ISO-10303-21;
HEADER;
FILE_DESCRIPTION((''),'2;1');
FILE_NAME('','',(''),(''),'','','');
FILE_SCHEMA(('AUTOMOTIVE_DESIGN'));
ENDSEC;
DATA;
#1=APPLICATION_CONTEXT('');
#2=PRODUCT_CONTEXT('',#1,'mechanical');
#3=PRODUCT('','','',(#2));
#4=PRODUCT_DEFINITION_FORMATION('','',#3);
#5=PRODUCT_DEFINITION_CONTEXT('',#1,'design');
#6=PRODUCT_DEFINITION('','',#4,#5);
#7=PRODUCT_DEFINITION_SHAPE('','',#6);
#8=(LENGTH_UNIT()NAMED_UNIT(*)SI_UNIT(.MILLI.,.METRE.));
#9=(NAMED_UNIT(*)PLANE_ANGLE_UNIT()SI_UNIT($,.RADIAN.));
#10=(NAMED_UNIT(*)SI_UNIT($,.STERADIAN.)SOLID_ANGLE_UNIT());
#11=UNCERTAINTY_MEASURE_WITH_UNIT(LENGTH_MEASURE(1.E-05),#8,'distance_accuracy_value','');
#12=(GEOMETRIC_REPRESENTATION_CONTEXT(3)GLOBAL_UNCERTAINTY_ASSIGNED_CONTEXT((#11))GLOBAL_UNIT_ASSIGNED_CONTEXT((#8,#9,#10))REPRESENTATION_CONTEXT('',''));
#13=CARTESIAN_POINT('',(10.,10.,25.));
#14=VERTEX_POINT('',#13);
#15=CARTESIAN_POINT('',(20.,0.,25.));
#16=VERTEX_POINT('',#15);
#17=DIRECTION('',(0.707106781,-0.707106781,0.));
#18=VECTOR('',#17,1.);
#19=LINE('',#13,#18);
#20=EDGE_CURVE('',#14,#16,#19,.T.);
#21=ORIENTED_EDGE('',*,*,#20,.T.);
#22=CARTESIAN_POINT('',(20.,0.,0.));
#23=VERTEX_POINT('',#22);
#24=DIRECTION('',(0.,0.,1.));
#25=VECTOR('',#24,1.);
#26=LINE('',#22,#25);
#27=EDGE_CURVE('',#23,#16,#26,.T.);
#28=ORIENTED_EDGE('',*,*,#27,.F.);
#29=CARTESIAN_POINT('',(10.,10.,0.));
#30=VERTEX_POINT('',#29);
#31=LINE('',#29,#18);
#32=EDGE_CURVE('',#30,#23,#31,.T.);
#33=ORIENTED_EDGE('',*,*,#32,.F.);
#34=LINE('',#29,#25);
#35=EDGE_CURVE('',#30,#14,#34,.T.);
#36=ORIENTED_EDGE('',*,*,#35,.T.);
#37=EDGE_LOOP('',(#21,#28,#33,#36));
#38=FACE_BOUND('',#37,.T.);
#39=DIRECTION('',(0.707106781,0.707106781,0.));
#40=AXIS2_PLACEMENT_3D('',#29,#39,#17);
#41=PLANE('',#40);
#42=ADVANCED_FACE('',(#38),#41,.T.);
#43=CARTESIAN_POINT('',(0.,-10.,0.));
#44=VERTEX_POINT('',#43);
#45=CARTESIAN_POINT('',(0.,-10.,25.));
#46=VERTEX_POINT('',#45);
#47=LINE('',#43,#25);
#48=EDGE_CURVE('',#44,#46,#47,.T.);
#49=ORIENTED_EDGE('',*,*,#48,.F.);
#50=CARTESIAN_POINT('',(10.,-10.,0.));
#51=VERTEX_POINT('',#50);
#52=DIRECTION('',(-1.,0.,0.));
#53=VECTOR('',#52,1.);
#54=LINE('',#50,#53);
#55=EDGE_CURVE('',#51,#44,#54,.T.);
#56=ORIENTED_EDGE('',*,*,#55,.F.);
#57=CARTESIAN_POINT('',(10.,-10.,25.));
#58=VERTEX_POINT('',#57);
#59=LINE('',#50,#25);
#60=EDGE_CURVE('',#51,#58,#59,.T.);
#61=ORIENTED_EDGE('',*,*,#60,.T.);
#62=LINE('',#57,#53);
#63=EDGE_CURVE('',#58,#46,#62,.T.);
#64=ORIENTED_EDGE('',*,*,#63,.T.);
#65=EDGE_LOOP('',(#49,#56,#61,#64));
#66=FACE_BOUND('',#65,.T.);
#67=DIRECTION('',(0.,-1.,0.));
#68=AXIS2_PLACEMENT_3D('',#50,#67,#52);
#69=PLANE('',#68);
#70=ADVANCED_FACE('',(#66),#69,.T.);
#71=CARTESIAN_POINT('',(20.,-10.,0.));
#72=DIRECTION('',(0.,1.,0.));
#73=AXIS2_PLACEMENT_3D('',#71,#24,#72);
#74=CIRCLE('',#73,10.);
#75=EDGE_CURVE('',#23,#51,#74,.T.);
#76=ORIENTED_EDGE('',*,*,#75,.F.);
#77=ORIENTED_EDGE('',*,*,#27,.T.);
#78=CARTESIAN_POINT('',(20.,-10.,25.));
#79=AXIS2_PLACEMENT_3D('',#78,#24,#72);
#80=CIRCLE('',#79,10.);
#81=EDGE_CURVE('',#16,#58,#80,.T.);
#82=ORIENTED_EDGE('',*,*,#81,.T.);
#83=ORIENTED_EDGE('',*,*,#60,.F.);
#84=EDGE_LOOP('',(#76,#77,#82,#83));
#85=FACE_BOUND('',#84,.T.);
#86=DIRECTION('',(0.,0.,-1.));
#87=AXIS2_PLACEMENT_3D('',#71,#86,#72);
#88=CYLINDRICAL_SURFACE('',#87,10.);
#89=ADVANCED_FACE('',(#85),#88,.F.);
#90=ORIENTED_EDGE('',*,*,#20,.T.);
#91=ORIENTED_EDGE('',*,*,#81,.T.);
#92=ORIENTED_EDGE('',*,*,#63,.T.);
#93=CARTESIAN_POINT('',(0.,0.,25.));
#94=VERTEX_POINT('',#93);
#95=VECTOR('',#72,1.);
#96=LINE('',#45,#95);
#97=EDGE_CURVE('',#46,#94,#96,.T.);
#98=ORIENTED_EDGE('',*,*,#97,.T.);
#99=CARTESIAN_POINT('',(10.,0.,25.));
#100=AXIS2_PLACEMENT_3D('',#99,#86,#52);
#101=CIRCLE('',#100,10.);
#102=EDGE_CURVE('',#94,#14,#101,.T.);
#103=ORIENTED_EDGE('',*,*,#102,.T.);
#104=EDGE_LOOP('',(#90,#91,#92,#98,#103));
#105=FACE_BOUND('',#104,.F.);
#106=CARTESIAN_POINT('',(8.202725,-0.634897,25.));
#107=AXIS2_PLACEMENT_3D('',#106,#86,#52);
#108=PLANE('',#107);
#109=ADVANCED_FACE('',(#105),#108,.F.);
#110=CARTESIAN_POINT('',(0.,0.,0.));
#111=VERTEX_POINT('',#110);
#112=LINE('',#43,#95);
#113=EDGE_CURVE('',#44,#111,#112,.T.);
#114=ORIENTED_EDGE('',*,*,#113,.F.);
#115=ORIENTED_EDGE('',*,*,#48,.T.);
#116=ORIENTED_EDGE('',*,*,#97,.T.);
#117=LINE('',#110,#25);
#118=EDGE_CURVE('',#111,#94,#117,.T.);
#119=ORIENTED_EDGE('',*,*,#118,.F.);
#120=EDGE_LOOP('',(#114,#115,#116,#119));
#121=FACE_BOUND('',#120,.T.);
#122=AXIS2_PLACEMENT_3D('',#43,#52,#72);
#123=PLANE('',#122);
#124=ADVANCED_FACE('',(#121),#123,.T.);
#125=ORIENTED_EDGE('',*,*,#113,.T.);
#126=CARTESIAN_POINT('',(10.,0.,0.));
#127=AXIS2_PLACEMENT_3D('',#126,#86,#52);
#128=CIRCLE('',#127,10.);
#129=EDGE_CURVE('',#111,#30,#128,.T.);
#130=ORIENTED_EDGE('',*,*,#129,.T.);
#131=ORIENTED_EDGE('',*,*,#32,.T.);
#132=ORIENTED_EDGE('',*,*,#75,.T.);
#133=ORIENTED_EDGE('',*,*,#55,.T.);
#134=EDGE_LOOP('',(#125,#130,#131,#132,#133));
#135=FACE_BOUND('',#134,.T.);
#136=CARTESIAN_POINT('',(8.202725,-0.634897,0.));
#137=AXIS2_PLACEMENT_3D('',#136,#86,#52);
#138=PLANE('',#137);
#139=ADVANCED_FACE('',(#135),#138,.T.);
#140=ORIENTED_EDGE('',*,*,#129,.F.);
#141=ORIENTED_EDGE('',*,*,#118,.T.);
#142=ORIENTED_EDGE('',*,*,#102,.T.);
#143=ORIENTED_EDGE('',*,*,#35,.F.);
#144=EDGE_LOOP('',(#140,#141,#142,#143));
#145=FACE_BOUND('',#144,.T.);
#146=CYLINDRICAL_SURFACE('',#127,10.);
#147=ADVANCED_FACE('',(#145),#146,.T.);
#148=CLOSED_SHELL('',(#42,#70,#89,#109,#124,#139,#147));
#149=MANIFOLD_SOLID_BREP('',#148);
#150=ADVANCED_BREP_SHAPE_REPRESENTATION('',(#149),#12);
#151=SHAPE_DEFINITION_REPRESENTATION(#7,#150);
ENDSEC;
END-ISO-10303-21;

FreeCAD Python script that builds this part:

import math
import FreeCAD as App
import Part
import Sketcher
from FreeCAD import Vector
Q = App.Units.Quantity

doc = App.newDocument("Part")
body = doc.addObject("PartDesign::Body", "Body")

sketch1 = body.newObject("Sketcher::SketchObject", "Sketch")
sketch1.AttachmentSupport = (doc.getObject("XY_Plane"), [""])
sketch1.MapMode = "FlatFace"
sketch1.addGeometry([
    Part.LineSegment(Vector(0, 0, 0), Vector(0, -10, 0)),
    Part.LineSegment(Vector(0, -10, 0), Vector(10, -10, 0)),
    Part.ArcOfCircle(Part.Circle(Vector(20, -10, 0), Vector(0, 0, 1), 10), math.radians(90), math.radians(180)),
    Part.LineSegment(Vector(20, 0, 0), Vector(10, 10, 0)),
    Part.ArcOfCircle(Part.Circle(Vector(10, 0, 0), Vector(0, 0, 1), 10), math.radians(90), math.radians(180)),
], False)
sketch1.addConstraint([
    Sketcher.Constraint("Coincident", 0, 2, 1, 1),
    Sketcher.Constraint("Coincident", 1, 2, 2, 2),
    Sketcher.Constraint("Coincident", 2, 1, 3, 1),
    Sketcher.Constraint("Coincident", 3, 2, 4, 1),
    Sketcher.Constraint("Tangent", 4, 2, 0, 1),
    Sketcher.Constraint("Vertical", 0),
    Sketcher.Constraint("Horizontal", 1),
    Sketcher.Constraint("Coincident", 4, 2, -1, 1),
    Sketcher.Constraint("Equal", 2, 4),
    Sketcher.Constraint("Symmetric", 1, 2, 3, 2, -1),
    Sketcher.Constraint("PointOnObject", 2, 1, -1),
    Sketcher.Constraint("Vertical", 4, 3, 1, 2),
    Sketcher.Constraint("Radius", 2, Q("10 mm")),
    Sketcher.Constraint("Angle", 3, Q("135 deg")),
])
pad1 = body.newObject("PartDesign::Pad", "Pad")
pad1.Profile = sketch1
pad1.Length = 25

doc.recompute()
